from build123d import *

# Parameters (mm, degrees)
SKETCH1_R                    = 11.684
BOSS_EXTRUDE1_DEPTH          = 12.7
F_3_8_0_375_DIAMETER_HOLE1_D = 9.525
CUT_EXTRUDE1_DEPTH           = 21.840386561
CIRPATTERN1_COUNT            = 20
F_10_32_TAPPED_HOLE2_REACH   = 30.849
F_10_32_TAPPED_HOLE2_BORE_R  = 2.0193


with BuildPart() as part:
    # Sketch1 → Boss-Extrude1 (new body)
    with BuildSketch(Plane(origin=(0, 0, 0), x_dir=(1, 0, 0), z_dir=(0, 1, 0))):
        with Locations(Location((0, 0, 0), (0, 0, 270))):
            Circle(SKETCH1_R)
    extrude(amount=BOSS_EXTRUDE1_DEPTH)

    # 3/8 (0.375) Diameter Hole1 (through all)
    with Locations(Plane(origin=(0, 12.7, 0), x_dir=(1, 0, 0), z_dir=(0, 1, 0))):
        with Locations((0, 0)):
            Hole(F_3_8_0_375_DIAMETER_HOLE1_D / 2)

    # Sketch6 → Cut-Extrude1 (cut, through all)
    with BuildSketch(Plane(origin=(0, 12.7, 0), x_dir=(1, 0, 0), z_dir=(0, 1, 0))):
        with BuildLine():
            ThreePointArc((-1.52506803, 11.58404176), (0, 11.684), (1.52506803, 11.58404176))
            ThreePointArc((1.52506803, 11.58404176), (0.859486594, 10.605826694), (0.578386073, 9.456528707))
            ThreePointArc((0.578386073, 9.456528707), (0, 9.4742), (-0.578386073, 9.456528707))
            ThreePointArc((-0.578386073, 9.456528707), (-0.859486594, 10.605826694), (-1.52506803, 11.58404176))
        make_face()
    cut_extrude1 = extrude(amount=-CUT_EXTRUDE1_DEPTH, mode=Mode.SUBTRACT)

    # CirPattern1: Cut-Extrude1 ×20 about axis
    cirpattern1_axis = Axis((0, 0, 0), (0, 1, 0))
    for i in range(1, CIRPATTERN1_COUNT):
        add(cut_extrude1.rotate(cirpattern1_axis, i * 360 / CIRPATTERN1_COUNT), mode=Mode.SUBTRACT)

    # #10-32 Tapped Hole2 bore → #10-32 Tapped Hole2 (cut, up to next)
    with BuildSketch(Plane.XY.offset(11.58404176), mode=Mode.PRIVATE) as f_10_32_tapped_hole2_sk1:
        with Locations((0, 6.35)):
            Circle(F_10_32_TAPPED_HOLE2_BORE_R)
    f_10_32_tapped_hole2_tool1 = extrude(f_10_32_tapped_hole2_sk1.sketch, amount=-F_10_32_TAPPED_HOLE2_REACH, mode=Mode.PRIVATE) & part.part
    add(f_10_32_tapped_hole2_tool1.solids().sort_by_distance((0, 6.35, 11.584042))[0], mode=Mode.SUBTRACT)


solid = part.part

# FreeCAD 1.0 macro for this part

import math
import FreeCAD as App
import Part
import Sketcher
from FreeCAD import Vector
Q = App.Units.Quantity

doc = App.newDocument("Part")
body = doc.addObject("PartDesign::Body", "Body")

# Sketch on XZ plane
sketch1 = body.newObject("Sketcher::SketchObject", "Sketch")
sketch1.AttachmentSupport = (doc.getObject("XZ_Plane"), [""])
sketch1.MapMode = "FlatFace"
sketch1.addGeometry(Part.Circle(Vector(0, 0, 0), Vector(0, 0, 1), 11.684), False)
sketch1.addConstraint(Sketcher.Constraint("Coincident", 0, 3, -1, 1))
sketch1.addConstraint(Sketcher.Constraint("Diameter", 0, Q("0.92 in")))
pad1 = body.newObject("PartDesign::Pad", "Pad")
pad1.Profile = sketch1
pad1.Length = Q("0.5 in")
pad1.Reversed = True

# Sketch on XZ plane
sketch2 = body.newObject("Sketcher::SketchObject", "Sketch001")
sketch2.AttachmentSupport = (doc.getObject("XZ_Plane"), [""])
sketch2.MapMode = "FlatFace"
sketch2.AttachmentOffset = App.Placement(Vector(0, 0, -0.5 * 25.4), App.Rotation())
sketch2.addGeometry(Part.Circle(Vector(0, 0, 0), Vector(0, 0, 1), 4.7625), False)
sketch2.addConstraint(Sketcher.Constraint("Coincident", 0, 3, -1, 1))
sketch2.addConstraint(Sketcher.Constraint("Diameter", 0, Q("0.375 in")))
doc.recompute()
hole = body.newObject("PartDesign::Hole", "Hole")
hole.Profile = sketch2
hole.ThreadType = "None"
hole.Diameter = Q("0.375 in")
hole.DepthType = "ThroughAll"
hole.Reversed = True

# Sketch on XZ plane
sketch3 = body.newObject("Sketcher::SketchObject", "Sketch002")
sketch3.AttachmentSupport = (doc.getObject("XZ_Plane"), [""])
sketch3.MapMode = "FlatFace"
sketch3.AttachmentOffset = App.Placement(Vector(0, 0, -0.5 * 25.4), App.Rotation())
sketch3.addGeometry(Part.ArcOfCircle(Part.Circle(Vector(0, 0, 0), Vector(0, 0, 1), 11.684), math.radians(-97.5), math.radians(-82.5)), False)
sketch3.addGeometry(Part.ArcOfCircle(Part.Circle(Vector(-3.898738, -9.253447, 0), Vector(0, 0, 1), 3.326557), math.radians(-44.47537), math.radians(-3.5)), False)
sketch3.addGeometry(Part.ArcOfCircle(Part.Circle(Vector(0, 0, 0), Vector(0, 0, 1), 9.4742), math.radians(-93.5), math.radians(-86.5)), False)
sketch3.addGeometry(Part.ArcOfCircle(Part.Circle(Vector(3.898738, -9.253447, 0), Vector(0, 0, 1), 3.326557), math.radians(-176.5), math.radians(-135.52463)), False)
sketch3.addConstraint(Sketcher.Constraint("Coincident", 0, 1, 1, 1))
sketch3.addConstraint(Sketcher.Constraint("Coincident", 1, 2, 2, 1))
sketch3.addConstraint(Sketcher.Constraint("Coincident", 2, 2, 3, 1))
sketch3.addConstraint(Sketcher.Constraint("Coincident", 3, 2, 0, 2))
sketch3.addConstraint(Sketcher.Constraint("Coincident", 0, 3, -1, 1))
sketch3.addConstraint(Sketcher.Constraint("Coincident", 2, 3, -1, 1))
sketch3.addConstraint(Sketcher.Constraint("Equal", 1, 3))
sketch3.addConstraint(Sketcher.Constraint("Symmetric", 1, 3, 3, 3, -2))
sketch3.addConstraint(Sketcher.Constraint("Radius", 0, Q("0.46 in")))
sketch3.addConstraint(Sketcher.Constraint("Radius", 2, Q("0.373 in")))
sketch3.addConstraint(Sketcher.Constraint("Radius", 1, Q("3.326557 mm")))
sketch3.addConstraint(Sketcher.Constraint("DistanceX", 1, 3, -1, 1, Q("3.898738 mm")))
sketch3.addConstraint(Sketcher.Constraint("DistanceX", 0, 1, -1, 1, Q("1.525068 mm")))
pocket1 = body.newObject("PartDesign::Pocket", "Pocket")
pocket1.Profile = sketch3
pocket1.Type = "ThroughAll"
pocket1.Reversed = True
doc.recompute()

polarpattern = body.newObject("PartDesign::PolarPattern", "PolarPattern")
polarpattern.Originals = [pocket1]
polarpattern.Axis = (doc.getObject("Y_Axis"), [""])
polarpattern.Angle = 360
polarpattern.Occurrences = 20
body.Tip = polarpattern

# Sketch on XY plane
sketch4 = body.newObject("Sketcher::SketchObject", "Sketch003")
sketch4.AttachmentSupport = (doc.getObject("XY_Plane"), [""])
sketch4.MapMode = "FlatFace"
sketch4.AttachmentOffset = App.Placement(Vector(0, 0, 11.584042), App.Rotation())
sketch4.addGeometry(Part.Circle(Vector(0, 6.35, 0), Vector(0, 0, 1), 2.0193), False)
sketch4.addConstraint(Sketcher.Constraint("PointOnObject", 0, 3, -2))
sketch4.addConstraint(Sketcher.Constraint("Diameter", 0, Q("0.159 in")))
sketch4.addConstraint(Sketcher.Constraint("DistanceY", -1, 1, 0, 3, Q("0.25 in")))
pocket2 = body.newObject("PartDesign::Pocket", "Pocket001")
pocket2.Profile = sketch4
pocket2.Length = 7.270826

doc.recompute()
